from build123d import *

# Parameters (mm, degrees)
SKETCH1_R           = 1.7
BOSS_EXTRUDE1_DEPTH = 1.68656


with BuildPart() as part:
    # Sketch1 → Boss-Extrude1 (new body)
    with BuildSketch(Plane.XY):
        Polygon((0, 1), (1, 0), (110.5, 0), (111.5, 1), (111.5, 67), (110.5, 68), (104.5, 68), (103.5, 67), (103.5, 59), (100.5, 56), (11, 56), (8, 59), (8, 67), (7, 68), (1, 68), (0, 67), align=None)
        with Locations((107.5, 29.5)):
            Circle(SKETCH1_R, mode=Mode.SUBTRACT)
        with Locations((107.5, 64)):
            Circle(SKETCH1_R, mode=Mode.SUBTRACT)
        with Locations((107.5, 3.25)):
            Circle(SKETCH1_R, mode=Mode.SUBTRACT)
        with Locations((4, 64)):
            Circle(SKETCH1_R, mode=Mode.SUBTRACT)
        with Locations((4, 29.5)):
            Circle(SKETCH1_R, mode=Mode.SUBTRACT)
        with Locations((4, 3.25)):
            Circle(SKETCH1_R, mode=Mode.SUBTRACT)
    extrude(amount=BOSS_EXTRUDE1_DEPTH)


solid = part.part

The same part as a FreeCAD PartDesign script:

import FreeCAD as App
import Part
import Sketcher

V = App.Vector
Q = App.Units.Quantity

doc = App.newDocument("Part")
params = doc.addObject("Spreadsheet::Sheet", "Params")
for row, (alias, value) in enumerate([
    ("sketch1_diameter", "3.4 mm"),
    ("sketch1_width", "6 mm"),
    ("sketch1_height", "66 mm"),
    ("sketch1_height2", "8 mm"),
    ("sketch1_width2", "109.5 mm"),
    ("pad1_length", "1.68656 mm"),
], start=1):
    params.set(f"A{row}", alias)
    params.set(f"B{row}", "=" + value)
    params.setAlias(f"B{row}", alias)

body = doc.addObject("PartDesign::Body", "Body")

# Sketch on XY plane
sketch1 = body.newObject("Sketcher::SketchObject", "Sketch")
sketch1.AttachmentSupport = (doc.getObject("XY_Plane"), [""])
sketch1.MapMode = "FlatFace"
sketch1.addGeometry(Part.LineSegment(V(0, 1, 0), V(1, 0, 0)), False)
sketch1.addGeometry(Part.LineSegment(V(1, 0, 0), V(110.5, 0, 0)), False)
sketch1.addGeometry(Part.LineSegment(V(110.5, 0, 0), V(111.5, 1, 0)), False)
sketch1.addGeometry(Part.LineSegment(V(111.5, 1, 0), V(111.5, 67, 0)), False)
sketch1.addGeometry(Part.LineSegment(V(111.5, 67, 0), V(110.5, 68, 0)), False)
sketch1.addGeometry(Part.LineSegment(V(110.5, 68, 0), V(104.5, 68, 0)), False)
sketch1.addGeometry(Part.LineSegment(V(104.5, 68, 0), V(103.5, 67, 0)), False)
sketch1.addGeometry(Part.LineSegment(V(103.5, 67, 0), V(103.5, 59, 0)), False)
sketch1.addGeometry(Part.LineSegment(V(103.5, 59, 0), V(100.5, 56, 0)), False)
sketch1.addGeometry(Part.LineSegment(V(100.5, 56, 0), V(11, 56, 0)), False)
sketch1.addGeometry(Part.LineSegment(V(11, 56, 0), V(8, 59, 0)), False)
sketch1.addGeometry(Part.LineSegment(V(8, 59, 0), V(8, 67, 0)), False)
sketch1.addGeometry(Part.LineSegment(V(8, 67, 0), V(7, 68, 0)), False)
sketch1.addGeometry(Part.LineSegment(V(7, 68, 0), V(1, 68, 0)), False)
sketch1.addGeometry(Part.LineSegment(V(1, 68, 0), V(0, 67, 0)), False)
sketch1.addGeometry(Part.LineSegment(V(0, 67, 0), V(0, 1, 0)), False)
sketch1.addGeometry(Part.Circle(V(4, 3.2, 0), V(0, 0, 1), 1.7), False)
sketch1.addGeometry(Part.Circle(V(4, 29.5, 0), V(0, 0, 1), 1.7), False)
sketch1.addGeometry(Part.Circle(V(107.5, 3.2, 0), V(0, 0, 1), 1.7), False)
sketch1.addGeometry(Part.Circle(V(107.5, 29.5, 0), V(0, 0, 1), 1.7), False)
sketch1.addGeometry(Part.Circle(V(4, 64, 0), V(0, 0, 1), 1.7), False)
sketch1.addGeometry(Part.Circle(V(107.5, 64, 0), V(0, 0, 1), 1.7), False)
sketch1.addConstraint(Sketcher.Constraint("Coincident", 0, 2, 1, 1))
sketch1.addConstraint(Sketcher.Constraint("Coincident", 1, 2, 2, 1))
sketch1.addConstraint(Sketcher.Constraint("Coincident", 2, 2, 3, 1))
sketch1.addConstraint(Sketcher.Constraint("Coincident", 3, 2, 4, 1))
sketch1.addConstraint(Sketcher.Constraint("Coincident", 4, 2, 5, 1))
sketch1.addConstraint(Sketcher.Constraint("Coincident", 5, 2, 6, 1))
sketch1.addConstraint(Sketcher.Constraint("Coincident", 6, 2, 7, 1))
sketch1.addConstraint(Sketcher.Constraint("Coincident", 7, 2, 8, 1))
sketch1.addConstraint(Sketcher.Constraint("Coincident", 8, 2, 9, 1))
sketch1.addConstraint(Sketcher.Constraint("Coincident", 9, 2, 10, 1))
sketch1.addConstraint(Sketcher.Constraint("Coincident", 10, 2, 11, 1))
sketch1.addConstraint(Sketcher.Constraint("Coincident", 11, 2, 12, 1))
sketch1.addConstraint(Sketcher.Constraint("Coincident", 12, 2, 13, 1))
sketch1.addConstraint(Sketcher.Constraint("Coincident", 13, 2, 14, 1))
sketch1.addConstraint(Sketcher.Constraint("Coincident", 14, 2, 15, 1))
sketch1.addConstraint(Sketcher.Constraint("Coincident", 15, 2, 0, 1))
sketch1.addConstraint(Sketcher.Constraint("Horizontal", 1))
sketch1.addConstraint(Sketcher.Constraint("Vertical", 3))
sketch1.addConstraint(Sketcher.Constraint("Horizontal", 5))
sketch1.addConstraint(Sketcher.Constraint("Vertical", 7))
sketch1.addConstraint(Sketcher.Constraint("Horizontal", 9))
sketch1.addConstraint(Sketcher.Constraint("Vertical", 11))
sketch1.addConstraint(Sketcher.Constraint("Horizontal", 13))
sketch1.addConstraint(Sketcher.Constraint("Vertical", 15))
sketch1.addConstraint(Sketcher.Constraint("Equal", 16, 17))
sketch1.addConstraint(Sketcher.Constraint("Equal", 17, 18))
sketch1.addConstraint(Sketcher.Constraint("Equal", 18, 19))
sketch1.addConstraint(Sketcher.Constraint("Equal", 19, 20))
sketch1.addConstraint(Sketcher.Constraint("Equal", 20, 21))
sketch1.addConstraint(Sketcher.Constraint("PointOnObject", 0, 2, -1))
sketch1.addConstraint(Sketcher.Constraint("PointOnObject", 14, 2, -2))
sketch1.addConstraint(Sketcher.Constraint("Perpendicular", 0, 2))
sketch1.addConstraint(Sketcher.Constraint("Perpendicular", 2, 4))
sketch1.addConstraint(Sketcher.Constraint("Perpendicular", 4, 6))
sketch1.addConstraint(Sketcher.Constraint("Parallel", 6, 8))
sketch1.addConstraint(Sketcher.Constraint("Perpendicular", 8, 10))
sketch1.addConstraint(Sketcher.Constraint("Parallel", 10, 12))
sketch1.addConstraint(Sketcher.Constraint("Perpendicular", 12, 14))
sketch1.addConstraint(Sketcher.Constraint("Horizontal", 16, 3, 18, 3))
sketch1.addConstraint(Sketcher.Constraint("Horizontal", 17, 3, 19, 3))
sketch1.addConstraint(Sketcher.Constraint("Horizontal", 20, 3, 21, 3))
sketch1.addConstraint(Sketcher.Constraint("Horizontal", 3, 2, 6, 2))
sketch1.addConstraint(Sketcher.Constraint("Horizontal", 7, 2, 10, 2))
sketch1.addConstraint(Sketcher.Constraint("Horizontal", 6, 2, 11, 2))
sketch1.addConstraint(Sketcher.Constraint("Horizontal", 5, 2, 12, 2))
sketch1.addConstraint(Sketcher.Constraint("Horizontal", 11, 2, 14, 2))
sketch1.addConstraint(Sketcher.Constraint("Horizontal", 2, 2, 15, 2))
sketch1.addConstraint(Sketcher.Constraint("Vertical", 16, 3, 17, 3))
sketch1.addConstraint(Sketcher.Constraint("Vertical", 18, 3, 19, 3))
sketch1.addConstraint(Sketcher.Constraint("Vertical", 17, 3, 20, 3))
sketch1.addConstraint(Sketcher.Constraint("Vertical", 19, 3, 21, 3))
sketch1.addConstraint(Sketcher.Constraint("Vertical", 1, 2, 4, 2))
sketch1.addConstraint(Sketcher.Constraint("Vertical", 0, 2, 13, 2))
sketch1.addConstraint(Sketcher.Constraint("Equal", 5, 13))
sketch1.addConstraint(Sketcher.Constraint("Diameter", 16, Q("3.4 mm")))
sketch1.addConstraint(Sketcher.Constraint("DistanceX", 5, 2, 5, 1, Q("6 mm")))
sketch1.addConstraint(Sketcher.Constraint("DistanceY", 3, 1, 3, 2, Q("66 mm")))
sketch1.addConstraint(Sketcher.Constraint("DistanceY", 7, 2, 7, 1, Q("8 mm")))
sketch1.addConstraint(Sketcher.Constraint("DistanceX", 1, 1, 1, 2, Q("109.5 mm")))
sketch1.addConstraint(Sketcher.Constraint("DistanceX", 9, 2, 9, 1, Q("89.5 mm")))
sketch1.addConstraint(Sketcher.Constraint("DistanceX", -1, 1, 16, 3, Q("4 mm")))
sketch1.addConstraint(Sketcher.Constraint("DistanceY", -1, 1, 20, 3, Q("64 mm")))
sketch1.addConstraint(Sketcher.Constraint("DistanceX", -1, 1, 0, 2, Q("1 mm")))
sketch1.addConstraint(Sketcher.Constraint("DistanceX", 18, 3, 1, 2, Q("3 mm")))
sketch1.addConstraint(Sketcher.Constraint("DistanceY", -1, 1, 17, 3, Q("29.5 mm")))
sketch1.addConstraint(Sketcher.Constraint("DistanceY", -1, 1, 16, 3, Q("3.25 mm")))
sketch1.setExpression("Constraints[54]", "Params.sketch1_diameter")
sketch1.setExpression("Constraints[55]", "Params.sketch1_width")
sketch1.setExpression("Constraints[56]", "Params.sketch1_height")
sketch1.setExpression("Constraints[57]", "Params.sketch1_height2")
sketch1.setExpression("Constraints[58]", "Params.sketch1_width2")
pad1 = body.newObject("PartDesign::Pad", "Pad")
pad1.Profile = sketch1
pad1.setExpression("Length", "Params.pad1_length")

doc.recompute()
